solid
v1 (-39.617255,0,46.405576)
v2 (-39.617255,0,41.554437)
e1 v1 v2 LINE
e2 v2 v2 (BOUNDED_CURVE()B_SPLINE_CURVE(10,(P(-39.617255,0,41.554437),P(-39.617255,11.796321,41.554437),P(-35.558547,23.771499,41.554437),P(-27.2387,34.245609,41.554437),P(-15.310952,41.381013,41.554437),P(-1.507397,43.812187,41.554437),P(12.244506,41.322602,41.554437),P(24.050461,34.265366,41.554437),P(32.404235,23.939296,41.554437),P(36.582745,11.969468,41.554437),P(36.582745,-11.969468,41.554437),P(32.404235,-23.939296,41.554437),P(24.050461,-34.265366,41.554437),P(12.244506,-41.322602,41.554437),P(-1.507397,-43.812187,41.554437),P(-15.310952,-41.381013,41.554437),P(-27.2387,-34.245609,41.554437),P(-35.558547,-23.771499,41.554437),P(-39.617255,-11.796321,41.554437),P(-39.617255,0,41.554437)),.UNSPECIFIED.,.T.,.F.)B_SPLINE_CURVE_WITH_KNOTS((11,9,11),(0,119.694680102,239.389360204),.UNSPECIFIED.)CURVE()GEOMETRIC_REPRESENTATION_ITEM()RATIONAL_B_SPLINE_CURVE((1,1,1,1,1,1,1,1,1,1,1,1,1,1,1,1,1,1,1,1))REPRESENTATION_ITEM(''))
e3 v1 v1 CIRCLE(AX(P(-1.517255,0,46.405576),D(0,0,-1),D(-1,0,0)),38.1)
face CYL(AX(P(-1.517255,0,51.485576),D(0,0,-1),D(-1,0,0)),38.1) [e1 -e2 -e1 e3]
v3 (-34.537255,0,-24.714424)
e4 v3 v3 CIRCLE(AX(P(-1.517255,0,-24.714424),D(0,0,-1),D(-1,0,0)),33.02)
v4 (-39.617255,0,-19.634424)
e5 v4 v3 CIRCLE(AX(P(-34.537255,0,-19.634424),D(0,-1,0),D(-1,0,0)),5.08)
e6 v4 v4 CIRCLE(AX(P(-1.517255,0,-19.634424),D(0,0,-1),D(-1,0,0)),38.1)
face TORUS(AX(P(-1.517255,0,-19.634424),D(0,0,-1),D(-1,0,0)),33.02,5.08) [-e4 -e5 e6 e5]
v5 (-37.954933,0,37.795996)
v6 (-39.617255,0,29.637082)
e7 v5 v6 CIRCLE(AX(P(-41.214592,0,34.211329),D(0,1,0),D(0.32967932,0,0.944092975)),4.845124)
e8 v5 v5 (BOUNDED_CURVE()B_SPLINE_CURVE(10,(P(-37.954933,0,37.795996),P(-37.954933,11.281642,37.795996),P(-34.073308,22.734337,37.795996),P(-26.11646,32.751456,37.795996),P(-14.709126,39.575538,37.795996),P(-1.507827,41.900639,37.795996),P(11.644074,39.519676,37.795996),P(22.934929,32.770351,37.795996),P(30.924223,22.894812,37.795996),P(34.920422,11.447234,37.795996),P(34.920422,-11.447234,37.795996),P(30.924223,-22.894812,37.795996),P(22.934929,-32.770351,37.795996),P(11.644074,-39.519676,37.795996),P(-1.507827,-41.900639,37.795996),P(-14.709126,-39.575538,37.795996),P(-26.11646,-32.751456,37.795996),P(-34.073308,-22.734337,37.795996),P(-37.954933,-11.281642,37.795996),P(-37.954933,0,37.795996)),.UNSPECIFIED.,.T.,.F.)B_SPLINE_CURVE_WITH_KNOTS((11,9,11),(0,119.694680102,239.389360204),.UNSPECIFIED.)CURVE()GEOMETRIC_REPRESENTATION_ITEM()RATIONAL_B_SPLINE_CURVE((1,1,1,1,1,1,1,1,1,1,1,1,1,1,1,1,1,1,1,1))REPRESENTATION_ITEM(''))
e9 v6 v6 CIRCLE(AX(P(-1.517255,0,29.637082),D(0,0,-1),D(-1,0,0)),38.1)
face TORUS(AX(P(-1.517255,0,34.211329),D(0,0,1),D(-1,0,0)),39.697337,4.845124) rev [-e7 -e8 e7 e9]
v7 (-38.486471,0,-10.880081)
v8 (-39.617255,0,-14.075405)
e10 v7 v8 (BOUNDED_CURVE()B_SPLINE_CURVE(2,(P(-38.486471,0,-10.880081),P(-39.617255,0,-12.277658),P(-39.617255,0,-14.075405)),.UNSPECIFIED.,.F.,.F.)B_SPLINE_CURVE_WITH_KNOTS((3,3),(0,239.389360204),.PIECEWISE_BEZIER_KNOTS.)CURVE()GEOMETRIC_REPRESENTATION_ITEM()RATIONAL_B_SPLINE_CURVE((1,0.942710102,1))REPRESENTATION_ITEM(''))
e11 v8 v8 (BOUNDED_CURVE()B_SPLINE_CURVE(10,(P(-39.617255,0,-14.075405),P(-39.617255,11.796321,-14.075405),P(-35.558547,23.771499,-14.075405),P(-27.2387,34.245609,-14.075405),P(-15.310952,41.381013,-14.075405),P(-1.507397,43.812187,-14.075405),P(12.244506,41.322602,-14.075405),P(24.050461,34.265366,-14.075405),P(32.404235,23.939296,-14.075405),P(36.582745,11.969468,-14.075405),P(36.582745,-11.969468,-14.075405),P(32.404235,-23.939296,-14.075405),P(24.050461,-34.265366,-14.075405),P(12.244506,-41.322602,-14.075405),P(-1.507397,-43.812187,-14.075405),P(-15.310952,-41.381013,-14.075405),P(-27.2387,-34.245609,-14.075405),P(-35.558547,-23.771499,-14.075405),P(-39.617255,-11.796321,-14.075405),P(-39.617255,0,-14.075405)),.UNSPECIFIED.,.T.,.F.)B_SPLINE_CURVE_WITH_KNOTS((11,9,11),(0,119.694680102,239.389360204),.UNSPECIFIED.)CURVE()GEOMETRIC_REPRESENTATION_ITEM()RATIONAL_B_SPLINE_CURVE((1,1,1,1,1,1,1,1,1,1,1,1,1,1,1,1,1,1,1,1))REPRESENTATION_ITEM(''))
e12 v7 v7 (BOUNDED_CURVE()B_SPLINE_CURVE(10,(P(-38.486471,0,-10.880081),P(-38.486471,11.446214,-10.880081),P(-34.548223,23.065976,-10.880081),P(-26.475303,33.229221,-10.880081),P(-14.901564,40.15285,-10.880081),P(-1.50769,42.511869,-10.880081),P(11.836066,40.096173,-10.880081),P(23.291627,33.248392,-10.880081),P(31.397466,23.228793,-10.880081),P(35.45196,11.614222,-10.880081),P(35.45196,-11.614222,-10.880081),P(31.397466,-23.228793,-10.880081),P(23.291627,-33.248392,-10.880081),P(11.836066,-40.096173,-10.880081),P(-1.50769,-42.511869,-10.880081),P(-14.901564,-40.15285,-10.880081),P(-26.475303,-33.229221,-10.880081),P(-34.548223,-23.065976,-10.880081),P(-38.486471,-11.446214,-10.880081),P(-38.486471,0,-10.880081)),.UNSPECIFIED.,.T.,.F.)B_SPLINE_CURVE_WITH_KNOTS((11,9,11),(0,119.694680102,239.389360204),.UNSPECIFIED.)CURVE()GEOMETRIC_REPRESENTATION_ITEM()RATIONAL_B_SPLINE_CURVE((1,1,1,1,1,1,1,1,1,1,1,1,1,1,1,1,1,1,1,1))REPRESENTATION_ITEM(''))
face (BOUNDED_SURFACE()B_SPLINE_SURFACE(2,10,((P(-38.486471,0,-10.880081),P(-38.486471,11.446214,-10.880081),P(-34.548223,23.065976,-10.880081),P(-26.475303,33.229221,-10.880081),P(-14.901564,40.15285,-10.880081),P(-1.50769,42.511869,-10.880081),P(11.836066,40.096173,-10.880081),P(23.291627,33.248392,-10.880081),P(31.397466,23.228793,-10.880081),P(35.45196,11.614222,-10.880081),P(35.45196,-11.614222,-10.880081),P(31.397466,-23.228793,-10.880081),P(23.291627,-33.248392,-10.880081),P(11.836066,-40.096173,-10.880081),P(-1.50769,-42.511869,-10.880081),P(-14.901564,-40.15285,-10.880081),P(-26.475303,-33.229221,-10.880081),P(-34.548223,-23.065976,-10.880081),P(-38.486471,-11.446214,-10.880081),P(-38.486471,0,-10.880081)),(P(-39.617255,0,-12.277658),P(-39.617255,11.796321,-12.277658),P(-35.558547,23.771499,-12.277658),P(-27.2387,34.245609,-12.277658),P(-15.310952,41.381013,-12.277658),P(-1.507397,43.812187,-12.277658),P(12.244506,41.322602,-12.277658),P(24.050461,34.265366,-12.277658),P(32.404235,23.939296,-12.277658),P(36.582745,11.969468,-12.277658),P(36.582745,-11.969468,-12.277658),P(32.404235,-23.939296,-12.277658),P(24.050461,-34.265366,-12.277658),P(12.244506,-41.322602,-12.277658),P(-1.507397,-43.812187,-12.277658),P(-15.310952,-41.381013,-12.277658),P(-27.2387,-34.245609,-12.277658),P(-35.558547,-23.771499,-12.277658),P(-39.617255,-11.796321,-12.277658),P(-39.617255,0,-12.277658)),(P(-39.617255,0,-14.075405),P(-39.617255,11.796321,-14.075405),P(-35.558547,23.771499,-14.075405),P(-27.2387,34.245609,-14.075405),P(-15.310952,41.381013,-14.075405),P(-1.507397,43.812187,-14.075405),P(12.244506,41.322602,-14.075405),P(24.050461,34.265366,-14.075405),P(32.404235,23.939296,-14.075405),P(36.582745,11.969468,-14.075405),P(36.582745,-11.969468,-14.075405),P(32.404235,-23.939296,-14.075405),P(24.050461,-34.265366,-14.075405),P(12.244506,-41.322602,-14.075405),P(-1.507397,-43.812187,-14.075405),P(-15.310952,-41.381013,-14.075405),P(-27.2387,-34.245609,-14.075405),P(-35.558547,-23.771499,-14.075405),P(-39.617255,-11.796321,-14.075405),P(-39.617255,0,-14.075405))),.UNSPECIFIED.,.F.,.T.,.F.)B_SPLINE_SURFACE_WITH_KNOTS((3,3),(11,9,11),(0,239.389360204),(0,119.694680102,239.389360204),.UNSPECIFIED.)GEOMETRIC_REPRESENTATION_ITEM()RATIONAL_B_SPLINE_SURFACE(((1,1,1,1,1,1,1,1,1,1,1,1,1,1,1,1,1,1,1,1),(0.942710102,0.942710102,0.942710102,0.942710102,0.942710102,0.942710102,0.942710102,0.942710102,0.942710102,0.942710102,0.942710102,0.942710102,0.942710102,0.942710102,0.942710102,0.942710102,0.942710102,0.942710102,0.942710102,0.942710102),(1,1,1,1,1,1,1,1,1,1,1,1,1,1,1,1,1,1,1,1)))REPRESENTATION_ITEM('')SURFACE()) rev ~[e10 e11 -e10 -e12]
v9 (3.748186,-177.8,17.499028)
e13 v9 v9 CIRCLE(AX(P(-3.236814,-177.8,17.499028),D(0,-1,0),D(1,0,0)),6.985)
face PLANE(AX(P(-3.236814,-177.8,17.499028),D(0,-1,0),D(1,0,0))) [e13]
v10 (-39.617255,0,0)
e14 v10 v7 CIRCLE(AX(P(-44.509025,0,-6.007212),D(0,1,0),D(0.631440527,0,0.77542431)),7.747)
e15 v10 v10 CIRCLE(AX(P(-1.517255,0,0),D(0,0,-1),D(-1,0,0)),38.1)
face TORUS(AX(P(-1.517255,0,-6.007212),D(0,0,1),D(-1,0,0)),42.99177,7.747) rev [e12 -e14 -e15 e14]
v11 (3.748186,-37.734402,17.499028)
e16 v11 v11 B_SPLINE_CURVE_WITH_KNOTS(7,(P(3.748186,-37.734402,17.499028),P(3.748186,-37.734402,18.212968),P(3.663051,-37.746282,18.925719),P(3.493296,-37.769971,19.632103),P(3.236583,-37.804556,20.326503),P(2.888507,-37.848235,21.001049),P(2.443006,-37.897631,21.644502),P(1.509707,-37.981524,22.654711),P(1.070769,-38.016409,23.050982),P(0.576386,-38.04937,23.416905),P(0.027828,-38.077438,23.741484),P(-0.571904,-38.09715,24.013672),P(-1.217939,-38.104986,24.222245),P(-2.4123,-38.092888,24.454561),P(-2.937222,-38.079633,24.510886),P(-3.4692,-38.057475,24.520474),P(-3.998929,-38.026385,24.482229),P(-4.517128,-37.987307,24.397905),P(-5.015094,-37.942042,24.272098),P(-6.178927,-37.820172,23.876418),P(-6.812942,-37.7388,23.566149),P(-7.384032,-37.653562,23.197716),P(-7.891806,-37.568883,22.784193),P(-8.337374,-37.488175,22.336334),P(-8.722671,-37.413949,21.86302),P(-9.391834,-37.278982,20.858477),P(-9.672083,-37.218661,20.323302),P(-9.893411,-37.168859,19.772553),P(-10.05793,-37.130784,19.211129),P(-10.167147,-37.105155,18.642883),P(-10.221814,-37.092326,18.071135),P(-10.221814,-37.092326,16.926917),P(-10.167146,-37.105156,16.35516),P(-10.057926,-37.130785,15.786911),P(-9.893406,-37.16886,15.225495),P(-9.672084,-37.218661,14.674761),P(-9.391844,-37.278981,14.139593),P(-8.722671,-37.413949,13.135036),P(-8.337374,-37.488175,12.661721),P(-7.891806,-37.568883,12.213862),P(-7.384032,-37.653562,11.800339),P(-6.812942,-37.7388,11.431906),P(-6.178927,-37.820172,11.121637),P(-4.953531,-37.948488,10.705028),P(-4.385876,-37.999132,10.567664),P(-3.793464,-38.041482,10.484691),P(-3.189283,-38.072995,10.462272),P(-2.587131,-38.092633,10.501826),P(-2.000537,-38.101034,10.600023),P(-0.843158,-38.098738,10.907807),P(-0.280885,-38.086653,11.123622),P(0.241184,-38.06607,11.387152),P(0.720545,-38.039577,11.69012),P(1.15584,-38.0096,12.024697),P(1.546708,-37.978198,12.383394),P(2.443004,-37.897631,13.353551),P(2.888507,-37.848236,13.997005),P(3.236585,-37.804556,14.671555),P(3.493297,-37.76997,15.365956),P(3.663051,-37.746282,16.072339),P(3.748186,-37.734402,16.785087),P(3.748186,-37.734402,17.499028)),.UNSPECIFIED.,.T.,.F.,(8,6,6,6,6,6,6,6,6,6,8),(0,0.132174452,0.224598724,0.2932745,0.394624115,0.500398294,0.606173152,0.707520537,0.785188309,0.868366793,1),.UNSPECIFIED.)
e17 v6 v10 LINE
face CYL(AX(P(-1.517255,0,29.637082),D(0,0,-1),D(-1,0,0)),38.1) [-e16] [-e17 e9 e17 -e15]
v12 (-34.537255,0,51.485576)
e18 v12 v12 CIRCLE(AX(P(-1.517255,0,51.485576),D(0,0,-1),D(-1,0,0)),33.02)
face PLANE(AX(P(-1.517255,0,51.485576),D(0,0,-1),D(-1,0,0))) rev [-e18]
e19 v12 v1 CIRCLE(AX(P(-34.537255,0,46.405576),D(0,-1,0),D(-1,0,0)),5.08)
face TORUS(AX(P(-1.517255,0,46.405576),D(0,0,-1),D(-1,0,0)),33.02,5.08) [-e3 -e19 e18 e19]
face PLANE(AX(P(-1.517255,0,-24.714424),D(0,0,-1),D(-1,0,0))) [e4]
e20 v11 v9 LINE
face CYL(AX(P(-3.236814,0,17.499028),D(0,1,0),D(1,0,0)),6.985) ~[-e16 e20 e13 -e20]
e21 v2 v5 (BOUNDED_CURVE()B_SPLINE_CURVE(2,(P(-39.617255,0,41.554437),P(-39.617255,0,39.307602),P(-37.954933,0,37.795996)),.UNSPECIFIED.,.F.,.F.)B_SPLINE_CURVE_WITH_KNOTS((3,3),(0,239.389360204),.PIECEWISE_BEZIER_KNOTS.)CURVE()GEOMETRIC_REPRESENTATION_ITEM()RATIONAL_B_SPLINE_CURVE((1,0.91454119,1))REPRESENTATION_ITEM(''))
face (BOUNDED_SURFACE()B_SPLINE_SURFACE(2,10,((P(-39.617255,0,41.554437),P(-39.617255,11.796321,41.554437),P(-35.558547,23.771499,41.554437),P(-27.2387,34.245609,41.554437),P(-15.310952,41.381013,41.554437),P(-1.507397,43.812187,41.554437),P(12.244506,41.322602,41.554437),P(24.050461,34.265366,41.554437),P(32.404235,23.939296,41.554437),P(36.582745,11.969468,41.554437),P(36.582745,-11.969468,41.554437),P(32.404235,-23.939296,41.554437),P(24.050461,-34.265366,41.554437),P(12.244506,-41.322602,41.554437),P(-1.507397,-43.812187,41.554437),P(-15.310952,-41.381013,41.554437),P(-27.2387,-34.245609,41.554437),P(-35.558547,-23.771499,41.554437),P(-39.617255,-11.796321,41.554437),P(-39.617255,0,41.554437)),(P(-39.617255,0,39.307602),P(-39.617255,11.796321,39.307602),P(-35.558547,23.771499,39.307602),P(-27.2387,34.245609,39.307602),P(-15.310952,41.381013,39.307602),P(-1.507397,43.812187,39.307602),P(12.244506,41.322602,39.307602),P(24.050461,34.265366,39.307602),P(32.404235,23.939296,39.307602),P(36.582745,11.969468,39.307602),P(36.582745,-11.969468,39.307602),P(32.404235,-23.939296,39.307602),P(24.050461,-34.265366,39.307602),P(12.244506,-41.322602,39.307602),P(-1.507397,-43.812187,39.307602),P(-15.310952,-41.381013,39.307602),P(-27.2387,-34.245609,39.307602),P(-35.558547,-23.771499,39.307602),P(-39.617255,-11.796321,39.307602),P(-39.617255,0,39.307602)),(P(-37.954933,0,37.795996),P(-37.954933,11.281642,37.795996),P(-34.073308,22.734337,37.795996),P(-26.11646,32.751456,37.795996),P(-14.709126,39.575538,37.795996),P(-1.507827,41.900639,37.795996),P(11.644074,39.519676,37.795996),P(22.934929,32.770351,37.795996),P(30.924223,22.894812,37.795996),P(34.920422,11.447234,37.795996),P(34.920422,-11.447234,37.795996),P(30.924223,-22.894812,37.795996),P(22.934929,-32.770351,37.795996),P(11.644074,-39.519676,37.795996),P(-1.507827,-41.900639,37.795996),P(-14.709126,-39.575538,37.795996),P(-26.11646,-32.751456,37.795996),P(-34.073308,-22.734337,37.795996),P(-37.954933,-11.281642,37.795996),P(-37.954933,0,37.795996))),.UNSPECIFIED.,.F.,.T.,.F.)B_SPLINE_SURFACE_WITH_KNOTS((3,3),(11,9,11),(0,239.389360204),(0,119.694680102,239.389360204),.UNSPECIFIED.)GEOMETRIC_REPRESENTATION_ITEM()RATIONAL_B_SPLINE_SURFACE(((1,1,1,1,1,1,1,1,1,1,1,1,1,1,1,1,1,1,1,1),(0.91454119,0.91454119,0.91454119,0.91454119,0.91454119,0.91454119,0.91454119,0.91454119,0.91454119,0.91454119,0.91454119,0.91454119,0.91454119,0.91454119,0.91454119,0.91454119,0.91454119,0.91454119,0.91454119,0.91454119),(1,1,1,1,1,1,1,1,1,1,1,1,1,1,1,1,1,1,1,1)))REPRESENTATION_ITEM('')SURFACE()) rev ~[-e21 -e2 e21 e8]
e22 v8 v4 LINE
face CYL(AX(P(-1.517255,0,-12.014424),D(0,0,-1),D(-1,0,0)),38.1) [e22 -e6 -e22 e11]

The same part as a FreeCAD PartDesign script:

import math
import FreeCAD as App
import Part
import Sketcher
Q = App.Units.Quantity


def edges_at(feature, points):
    """Names of the edges that pass closest to the given points."""
    edges = feature.Shape.Edges
    near = lambda p: min(range(len(edges)), key=lambda i: edges[i].distToShape(Part.Vertex(*p))[0])
    return sorted({f"Edge{near(p) + 1}" for p in points})

doc = App.newDocument("Part")
body = doc.addObject("PartDesign::Body", "Body")

sketch1 = body.newObject("Sketcher::SketchObject", "Sketch")
sketch1.AttachmentSupport = (doc.getObject("XZ_Plane"), [""])
sketch1.MapMode = "FlatFace"
sketch1.addGeometry([
    Part.LineSegment(App.Vector(-1.517255, 51.485576, 0), App.Vector(-39.617255, 51.485576, 0)),
    Part.LineSegment(App.Vector(-39.617255, 51.485576, 0), App.Vector(-39.617255, 38.785576, 0)),
    Part.ArcOfCircle(Part.Circle(App.Vector(-41.214592, 34.211329, 0), App.Vector(0, 0, 1), 4.845124), math.radians(-70.750687), math.radians(70.750687)),
    Part.LineSegment(App.Vector(-39.617255, 29.637082, 0), App.Vector(-39.617255, 0, 0)),
    Part.ArcOfCircle(Part.Circle(App.Vector(-44.509025, -6.007212, 0), App.Vector(0, 0, 1), 7.747), math.radians(-50.843518), math.radians(50.843518)),
    Part.LineSegment(App.Vector(-39.617255, -12.014424, 0), App.Vector(-39.617255, -24.714424, 0)),
    Part.LineSegment(App.Vector(-39.617255, -24.714424, 0), App.Vector(-1.517255, -24.714424, 0)),
    Part.LineSegment(App.Vector(-1.517255, -24.714424, 0), App.Vector(-1.517255, 51.485576, 0)),
], False)
sketch1.addGeometry(Part.LineSegment(App.Vector(-1.517255, 51.485576, 0), App.Vector(-1.517255, -24.714424, 0)), True)
sketch1.addConstraint([
    Sketcher.Constraint("Coincident", 0, 2, 1, 1),
    Sketcher.Constraint("Coincident", 1, 2, 2, 2),
    Sketcher.Constraint("Coincident", 2, 1, 3, 1),
    Sketcher.Constraint("Coincident", 3, 2, 4, 2),
    Sketcher.Constraint("Coincident", 4, 1, 5, 1),
    Sketcher.Constraint("Coincident", 5, 2, 6, 1),
    Sketcher.Constraint("Coincident", 6, 2, 7, 1),
    Sketcher.Constraint("Coincident", 7, 2, 0, 1),
    Sketcher.Constraint("Horizontal", 0),
    Sketcher.Constraint("Vertical", 1),
    Sketcher.Constraint("Vertical", 3),
    Sketcher.Constraint("Vertical", 5),
    Sketcher.Constraint("Horizontal", 6),
    Sketcher.Constraint("Vertical", 7),
    Sketcher.Constraint("Vertical", 8),
    Sketcher.Constraint("Coincident", 8, 1, 7, 2),
    Sketcher.Constraint("PointOnObject", 3, 2, -1),
    Sketcher.Constraint("Horizontal", 5, 2, 8, 2),
    Sketcher.Constraint("Vertical", 1, 2, 2, 1),
    Sketcher.Constraint("Vertical", 3, 2, 4, 1),
    Sketcher.Constraint("Equal", 1, 5),
    Sketcher.Constraint("DistanceY", 7, 1, 7, 2, Q("3 in")),
    Sketcher.Constraint("DistanceX", 0, 2, 0, 1, Q("1.5 in")),
    Sketcher.Constraint("DistanceY", 1, 2, 1, 1, Q("0.5 in")),
    Sketcher.Constraint("Radius", 4, Q("0.305 in")),
    Sketcher.Constraint("Radius", 2, Q("4.845124 mm")),
    Sketcher.Constraint("DistanceY", 3, 2, 3, 1, Q("29.637082 mm")),
    Sketcher.Constraint("DistanceY", -1, 1, 2, 3, Q("34.211329 mm")),
    Sketcher.Constraint("DistanceX", 2, 3, -1, 1, Q("41.214592 mm")),
])
revolution = body.newObject("PartDesign::Revolution", "Revolution")
revolution.Profile = sketch1
revolution.ReferenceAxis = (sketch1, ["Axis0"])
revolution.Angle = 360
doc.recompute()

fillet = body.newObject("PartDesign::Fillet", "Fillet")
fillet.Base = (revolution, edges_at(revolution, [
    (36.583, 0, 51.486),
    (36.583, 0, 38.786),
    (-39.617, 0, 45.136),
    (36.583, 0, -12.014),
    (36.583, 0, -24.714),
    (-39.617, 0, -18.364),
]))
fillet.Radius = Q("0.2 in")

sketch2 = body.newObject("Sketcher::SketchObject", "Sketch001")
sketch2.AttachmentSupport = (doc.getObject("XZ_Plane"), [""])
sketch2.MapMode = "FlatFace"
sketch2.addGeometry(Part.Circle(App.Vector(-3.236814, 17.499028, 0), App.Vector(0, 0, 1), 6.985), False)
sketch2.addConstraint([
    Sketcher.Constraint("Diameter", 0, Q("0.55 in")),
    Sketcher.Constraint("DistanceX", 0, 3, -1, 1, Q("3.236814 mm")),
    Sketcher.Constraint("DistanceY", -1, 1, 0, 3, Q("17.499028 mm")),
])
pad1 = body.newObject("PartDesign::Pad", "Pad")
pad1.Profile = sketch2
pad1.Length = Q("7 in")

doc.recompute()
